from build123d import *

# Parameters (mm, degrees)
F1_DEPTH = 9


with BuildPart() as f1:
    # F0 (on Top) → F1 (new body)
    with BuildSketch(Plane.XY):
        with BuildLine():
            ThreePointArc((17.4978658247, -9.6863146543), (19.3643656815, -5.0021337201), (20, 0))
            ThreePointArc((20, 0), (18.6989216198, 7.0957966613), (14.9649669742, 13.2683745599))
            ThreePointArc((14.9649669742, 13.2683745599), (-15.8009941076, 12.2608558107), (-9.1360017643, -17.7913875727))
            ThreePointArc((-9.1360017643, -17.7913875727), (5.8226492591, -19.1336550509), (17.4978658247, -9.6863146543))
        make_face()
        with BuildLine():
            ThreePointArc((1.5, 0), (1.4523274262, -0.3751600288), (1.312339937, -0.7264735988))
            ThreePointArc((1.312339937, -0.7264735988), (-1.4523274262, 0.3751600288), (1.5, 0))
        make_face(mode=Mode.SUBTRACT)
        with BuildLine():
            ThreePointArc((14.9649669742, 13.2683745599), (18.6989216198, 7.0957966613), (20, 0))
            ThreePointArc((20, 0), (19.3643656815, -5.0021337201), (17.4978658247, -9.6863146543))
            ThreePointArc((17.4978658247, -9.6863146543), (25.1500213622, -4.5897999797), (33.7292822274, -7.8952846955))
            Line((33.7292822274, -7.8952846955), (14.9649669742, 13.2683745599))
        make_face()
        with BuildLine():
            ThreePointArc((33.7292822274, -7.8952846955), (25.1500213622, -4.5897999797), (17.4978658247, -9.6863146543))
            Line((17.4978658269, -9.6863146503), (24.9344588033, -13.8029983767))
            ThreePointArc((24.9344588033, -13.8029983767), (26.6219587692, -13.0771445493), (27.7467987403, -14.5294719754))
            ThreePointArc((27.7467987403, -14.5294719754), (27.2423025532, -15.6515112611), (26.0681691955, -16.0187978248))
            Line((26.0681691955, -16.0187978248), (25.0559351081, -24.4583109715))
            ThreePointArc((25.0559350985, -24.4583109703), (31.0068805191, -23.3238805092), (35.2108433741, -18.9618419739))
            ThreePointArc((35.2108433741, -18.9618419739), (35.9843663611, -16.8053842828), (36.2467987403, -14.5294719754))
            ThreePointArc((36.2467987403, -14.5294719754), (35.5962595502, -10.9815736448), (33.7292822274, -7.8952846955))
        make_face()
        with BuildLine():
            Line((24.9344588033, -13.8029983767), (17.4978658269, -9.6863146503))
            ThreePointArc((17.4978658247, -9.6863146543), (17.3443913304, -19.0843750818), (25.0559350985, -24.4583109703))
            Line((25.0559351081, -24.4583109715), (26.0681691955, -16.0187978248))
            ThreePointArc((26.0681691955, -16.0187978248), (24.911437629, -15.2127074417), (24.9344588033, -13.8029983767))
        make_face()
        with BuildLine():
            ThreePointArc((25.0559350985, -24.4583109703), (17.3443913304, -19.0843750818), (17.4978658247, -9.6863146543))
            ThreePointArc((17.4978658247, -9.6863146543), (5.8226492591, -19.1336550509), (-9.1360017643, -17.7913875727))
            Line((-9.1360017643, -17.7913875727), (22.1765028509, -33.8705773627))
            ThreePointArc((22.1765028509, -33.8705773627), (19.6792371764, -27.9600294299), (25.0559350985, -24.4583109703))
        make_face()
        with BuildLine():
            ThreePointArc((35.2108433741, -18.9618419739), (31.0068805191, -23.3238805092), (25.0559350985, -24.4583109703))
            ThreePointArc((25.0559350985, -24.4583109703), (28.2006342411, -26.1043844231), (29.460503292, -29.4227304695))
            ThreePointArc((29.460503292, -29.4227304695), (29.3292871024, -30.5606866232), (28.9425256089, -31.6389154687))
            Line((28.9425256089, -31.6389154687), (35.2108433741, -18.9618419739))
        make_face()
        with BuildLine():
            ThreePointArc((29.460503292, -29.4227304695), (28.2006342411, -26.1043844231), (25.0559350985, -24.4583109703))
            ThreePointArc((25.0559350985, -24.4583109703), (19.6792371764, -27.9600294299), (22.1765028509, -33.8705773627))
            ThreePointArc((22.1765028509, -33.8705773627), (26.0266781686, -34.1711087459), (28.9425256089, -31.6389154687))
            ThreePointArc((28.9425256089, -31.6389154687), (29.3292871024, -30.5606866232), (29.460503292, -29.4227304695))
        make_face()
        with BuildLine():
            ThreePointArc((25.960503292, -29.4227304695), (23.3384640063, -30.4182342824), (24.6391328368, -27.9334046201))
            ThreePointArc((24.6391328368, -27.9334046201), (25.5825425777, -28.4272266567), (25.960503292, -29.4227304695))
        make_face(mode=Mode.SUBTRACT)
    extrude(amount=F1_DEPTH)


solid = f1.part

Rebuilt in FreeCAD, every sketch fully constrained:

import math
import FreeCAD as App
import Part
import Sketcher

V = App.Vector
Q = App.Units.Quantity

doc = App.newDocument("Part")
params = doc.addObject("Spreadsheet::Sheet", "Params")
for row, (alias, value) in enumerate([
    ("sketch1_radius", "10 mm"),
    ("sketch1_radius2", "20 mm"),
    ("sketch1_radius3", "5 mm"),
    ("sketch1_radius4", "1.5 mm"),
    ("pad1_length", "9 mm"),
], start=1):
    params.set(f"A{row}", alias)
    params.set(f"B{row}", "=" + value)
    params.setAlias(f"B{row}", alias)

body = doc.addObject("PartDesign::Body", "Body")

# Sketch on XY plane
sketch1 = body.newObject("Sketcher::SketchObject", "Sketch")
sketch1.AttachmentSupport = (doc.getObject("XY_Plane"), [""])
sketch1.MapMode = "FlatFace"
sketch1.addGeometry([
    Part.ArcOfCircle(Part.Circle(V(26.2, -14.5, 0), V(0, 0, 1), 10), math.radians(-26), math.radians(0)),  # 0
    Part.ArcOfCircle(Part.Circle(V(26.2, -14.5, 0), V(0, 0, 1), 10), math.radians(0), math.radians(42)),  # 1
    Part.LineSegment(V(33.7, -7.9, 0), V(15, 13.3, 0)),  # 2
    Part.ArcOfCircle(Part.Circle(V(0, 0, 0), V(0, 0, 1), 20), math.radians(42), math.radians(243)),  # 3
    Part.LineSegment(V(-9.1, -17.8, 0), V(22.2, -33.9, 0)),  # 4
    Part.ArcOfCircle(Part.Circle(V(24.5, -29.4, 0), V(0, 0, 1), 5), math.radians(-117), math.radians(-26)),  # 5
    Part.LineSegment(V(28.9, -31.6, 0), V(35.2, -19, 0)),  # 6
    Part.ArcOfCircle(Part.Circle(V(24.5, -29.4, 0), V(0, 0, 1), 1.5), math.radians(0), math.radians(83)),  # 7
    Part.ArcOfCircle(Part.Circle(V(24.5, -29.4, 0), V(0, 0, 1), 1.5), math.radians(83), math.radians(360)),  # 8
    Part.ArcOfCircle(Part.Circle(V(0, 0, 0), V(0, 0, 1), 1.5), math.radians(0), math.radians(331)),  # 9
    Part.ArcOfCircle(Part.Circle(V(0, 0, 0), V(0, 0, 1), 1.5), math.radians(-29), math.radians(0)),  # 10
    Part.ArcOfCircle(Part.Circle(V(26.2, -14.5, 0), V(0, 0, 1), 1.5), math.radians(0), math.radians(151)),  # 11
    Part.ArcOfCircle(Part.Circle(V(26.2, -14.5, 0), V(0, 0, 1), 1.5), math.radians(-97), math.radians(0)),  # 12
    Part.ArcOfCircle(Part.Circle(V(26.2, -14.5, 0), V(0, 0, 1), 1.5), math.radians(151), math.radians(263)),  # 13
], False)
sketch1.addConstraint([
    Sketcher.Constraint("Tangent", 0, 2, 1, 1),
    Sketcher.Constraint("Tangent", 1, 2, 2, 1),
    Sketcher.Constraint("Tangent", 2, 2, 3, 1),
    Sketcher.Constraint("Tangent", 3, 2, 4, 1),
    Sketcher.Constraint("Tangent", 4, 2, 5, 1),
    Sketcher.Constraint("Tangent", 5, 2, 6, 1),
    Sketcher.Constraint("Tangent", 6, 2, 0, 1),
    Sketcher.Constraint("Tangent", 7, 1, 8, 2),
    Sketcher.Constraint("Coincident", 8, 1, 7, 2),
    Sketcher.Constraint("Tangent", 9, 1, 10, 2),
    Sketcher.Constraint("Coincident", 10, 1, 9, 2),
    Sketcher.Constraint("Tangent", 11, 1, 12, 2),
    Sketcher.Constraint("Tangent", 12, 1, 13, 2),
    Sketcher.Constraint("Tangent", 13, 1, 11, 2),
    Sketcher.Constraint("Coincident", 3, 3, -1, 1),
    Sketcher.Constraint("Coincident", 9, 3, -1, 1),
    Sketcher.Constraint("Coincident", 7, 3, 5, 3),
    Sketcher.Constraint("Coincident", 11, 3, 0, 3),
    Sketcher.Constraint("Equal", 0, 1),
    Sketcher.Constraint("Equal", 8, 9),
    Sketcher.Constraint("Equal", 10, 11),
    Sketcher.Constraint("PointOnObject", 9, 1, -1),
    Sketcher.Constraint("Horizontal", 13, 3, 0, 2),
    Sketcher.Constraint("Horizontal", 8, 3, 7, 1),
    Sketcher.Constraint("Horizontal", 0, 2, 11, 1),
    Sketcher.Constraint("Radius", 0, Q("10 mm")),
    Sketcher.Constraint("Radius", 3, Q("20 mm")),
    Sketcher.Constraint("Radius", 5, Q("5 mm")),
    Sketcher.Constraint("Radius", 7, Q("1.5 mm")),
    Sketcher.Constraint("DistanceX", 3, 2, -1, 1, Q("9.136002 mm")),
    Sketcher.Constraint("DistanceY", 13, 1, -1, 1, Q("13.802998 mm")),
    Sketcher.Constraint("DistanceX", -1, 1, 0, 3, Q("26.246799 mm")),
    Sketcher.Constraint("Distance", 2, Q("28.284271 mm")),
    Sketcher.Constraint("Distance", 4, Q("35.199621 mm")),
    Sketcher.Constraint("DistanceX", -1, 1, 10, 1, Q("1.31234 mm")),
    Sketcher.Constraint("DistanceX", -1, 1, 12, 1, Q("26.068169 mm")),
    Sketcher.Constraint("DistanceX", 5, 3, 8, 1, Q("0.17863 mm")),
])
sketch1.setExpression("Constraints[25]", "Params.sketch1_radius")
sketch1.setExpression("Constraints[26]", "Params.sketch1_radius2")
sketch1.setExpression("Constraints[27]", "Params.sketch1_radius3")
sketch1.setExpression("Constraints[28]", "Params.sketch1_radius4")
pad1 = body.newObject("PartDesign::Pad", "Pad")
pad1.Profile = sketch1
pad1.setExpression("Length", "Params.pad1_length")

doc.recompute()
